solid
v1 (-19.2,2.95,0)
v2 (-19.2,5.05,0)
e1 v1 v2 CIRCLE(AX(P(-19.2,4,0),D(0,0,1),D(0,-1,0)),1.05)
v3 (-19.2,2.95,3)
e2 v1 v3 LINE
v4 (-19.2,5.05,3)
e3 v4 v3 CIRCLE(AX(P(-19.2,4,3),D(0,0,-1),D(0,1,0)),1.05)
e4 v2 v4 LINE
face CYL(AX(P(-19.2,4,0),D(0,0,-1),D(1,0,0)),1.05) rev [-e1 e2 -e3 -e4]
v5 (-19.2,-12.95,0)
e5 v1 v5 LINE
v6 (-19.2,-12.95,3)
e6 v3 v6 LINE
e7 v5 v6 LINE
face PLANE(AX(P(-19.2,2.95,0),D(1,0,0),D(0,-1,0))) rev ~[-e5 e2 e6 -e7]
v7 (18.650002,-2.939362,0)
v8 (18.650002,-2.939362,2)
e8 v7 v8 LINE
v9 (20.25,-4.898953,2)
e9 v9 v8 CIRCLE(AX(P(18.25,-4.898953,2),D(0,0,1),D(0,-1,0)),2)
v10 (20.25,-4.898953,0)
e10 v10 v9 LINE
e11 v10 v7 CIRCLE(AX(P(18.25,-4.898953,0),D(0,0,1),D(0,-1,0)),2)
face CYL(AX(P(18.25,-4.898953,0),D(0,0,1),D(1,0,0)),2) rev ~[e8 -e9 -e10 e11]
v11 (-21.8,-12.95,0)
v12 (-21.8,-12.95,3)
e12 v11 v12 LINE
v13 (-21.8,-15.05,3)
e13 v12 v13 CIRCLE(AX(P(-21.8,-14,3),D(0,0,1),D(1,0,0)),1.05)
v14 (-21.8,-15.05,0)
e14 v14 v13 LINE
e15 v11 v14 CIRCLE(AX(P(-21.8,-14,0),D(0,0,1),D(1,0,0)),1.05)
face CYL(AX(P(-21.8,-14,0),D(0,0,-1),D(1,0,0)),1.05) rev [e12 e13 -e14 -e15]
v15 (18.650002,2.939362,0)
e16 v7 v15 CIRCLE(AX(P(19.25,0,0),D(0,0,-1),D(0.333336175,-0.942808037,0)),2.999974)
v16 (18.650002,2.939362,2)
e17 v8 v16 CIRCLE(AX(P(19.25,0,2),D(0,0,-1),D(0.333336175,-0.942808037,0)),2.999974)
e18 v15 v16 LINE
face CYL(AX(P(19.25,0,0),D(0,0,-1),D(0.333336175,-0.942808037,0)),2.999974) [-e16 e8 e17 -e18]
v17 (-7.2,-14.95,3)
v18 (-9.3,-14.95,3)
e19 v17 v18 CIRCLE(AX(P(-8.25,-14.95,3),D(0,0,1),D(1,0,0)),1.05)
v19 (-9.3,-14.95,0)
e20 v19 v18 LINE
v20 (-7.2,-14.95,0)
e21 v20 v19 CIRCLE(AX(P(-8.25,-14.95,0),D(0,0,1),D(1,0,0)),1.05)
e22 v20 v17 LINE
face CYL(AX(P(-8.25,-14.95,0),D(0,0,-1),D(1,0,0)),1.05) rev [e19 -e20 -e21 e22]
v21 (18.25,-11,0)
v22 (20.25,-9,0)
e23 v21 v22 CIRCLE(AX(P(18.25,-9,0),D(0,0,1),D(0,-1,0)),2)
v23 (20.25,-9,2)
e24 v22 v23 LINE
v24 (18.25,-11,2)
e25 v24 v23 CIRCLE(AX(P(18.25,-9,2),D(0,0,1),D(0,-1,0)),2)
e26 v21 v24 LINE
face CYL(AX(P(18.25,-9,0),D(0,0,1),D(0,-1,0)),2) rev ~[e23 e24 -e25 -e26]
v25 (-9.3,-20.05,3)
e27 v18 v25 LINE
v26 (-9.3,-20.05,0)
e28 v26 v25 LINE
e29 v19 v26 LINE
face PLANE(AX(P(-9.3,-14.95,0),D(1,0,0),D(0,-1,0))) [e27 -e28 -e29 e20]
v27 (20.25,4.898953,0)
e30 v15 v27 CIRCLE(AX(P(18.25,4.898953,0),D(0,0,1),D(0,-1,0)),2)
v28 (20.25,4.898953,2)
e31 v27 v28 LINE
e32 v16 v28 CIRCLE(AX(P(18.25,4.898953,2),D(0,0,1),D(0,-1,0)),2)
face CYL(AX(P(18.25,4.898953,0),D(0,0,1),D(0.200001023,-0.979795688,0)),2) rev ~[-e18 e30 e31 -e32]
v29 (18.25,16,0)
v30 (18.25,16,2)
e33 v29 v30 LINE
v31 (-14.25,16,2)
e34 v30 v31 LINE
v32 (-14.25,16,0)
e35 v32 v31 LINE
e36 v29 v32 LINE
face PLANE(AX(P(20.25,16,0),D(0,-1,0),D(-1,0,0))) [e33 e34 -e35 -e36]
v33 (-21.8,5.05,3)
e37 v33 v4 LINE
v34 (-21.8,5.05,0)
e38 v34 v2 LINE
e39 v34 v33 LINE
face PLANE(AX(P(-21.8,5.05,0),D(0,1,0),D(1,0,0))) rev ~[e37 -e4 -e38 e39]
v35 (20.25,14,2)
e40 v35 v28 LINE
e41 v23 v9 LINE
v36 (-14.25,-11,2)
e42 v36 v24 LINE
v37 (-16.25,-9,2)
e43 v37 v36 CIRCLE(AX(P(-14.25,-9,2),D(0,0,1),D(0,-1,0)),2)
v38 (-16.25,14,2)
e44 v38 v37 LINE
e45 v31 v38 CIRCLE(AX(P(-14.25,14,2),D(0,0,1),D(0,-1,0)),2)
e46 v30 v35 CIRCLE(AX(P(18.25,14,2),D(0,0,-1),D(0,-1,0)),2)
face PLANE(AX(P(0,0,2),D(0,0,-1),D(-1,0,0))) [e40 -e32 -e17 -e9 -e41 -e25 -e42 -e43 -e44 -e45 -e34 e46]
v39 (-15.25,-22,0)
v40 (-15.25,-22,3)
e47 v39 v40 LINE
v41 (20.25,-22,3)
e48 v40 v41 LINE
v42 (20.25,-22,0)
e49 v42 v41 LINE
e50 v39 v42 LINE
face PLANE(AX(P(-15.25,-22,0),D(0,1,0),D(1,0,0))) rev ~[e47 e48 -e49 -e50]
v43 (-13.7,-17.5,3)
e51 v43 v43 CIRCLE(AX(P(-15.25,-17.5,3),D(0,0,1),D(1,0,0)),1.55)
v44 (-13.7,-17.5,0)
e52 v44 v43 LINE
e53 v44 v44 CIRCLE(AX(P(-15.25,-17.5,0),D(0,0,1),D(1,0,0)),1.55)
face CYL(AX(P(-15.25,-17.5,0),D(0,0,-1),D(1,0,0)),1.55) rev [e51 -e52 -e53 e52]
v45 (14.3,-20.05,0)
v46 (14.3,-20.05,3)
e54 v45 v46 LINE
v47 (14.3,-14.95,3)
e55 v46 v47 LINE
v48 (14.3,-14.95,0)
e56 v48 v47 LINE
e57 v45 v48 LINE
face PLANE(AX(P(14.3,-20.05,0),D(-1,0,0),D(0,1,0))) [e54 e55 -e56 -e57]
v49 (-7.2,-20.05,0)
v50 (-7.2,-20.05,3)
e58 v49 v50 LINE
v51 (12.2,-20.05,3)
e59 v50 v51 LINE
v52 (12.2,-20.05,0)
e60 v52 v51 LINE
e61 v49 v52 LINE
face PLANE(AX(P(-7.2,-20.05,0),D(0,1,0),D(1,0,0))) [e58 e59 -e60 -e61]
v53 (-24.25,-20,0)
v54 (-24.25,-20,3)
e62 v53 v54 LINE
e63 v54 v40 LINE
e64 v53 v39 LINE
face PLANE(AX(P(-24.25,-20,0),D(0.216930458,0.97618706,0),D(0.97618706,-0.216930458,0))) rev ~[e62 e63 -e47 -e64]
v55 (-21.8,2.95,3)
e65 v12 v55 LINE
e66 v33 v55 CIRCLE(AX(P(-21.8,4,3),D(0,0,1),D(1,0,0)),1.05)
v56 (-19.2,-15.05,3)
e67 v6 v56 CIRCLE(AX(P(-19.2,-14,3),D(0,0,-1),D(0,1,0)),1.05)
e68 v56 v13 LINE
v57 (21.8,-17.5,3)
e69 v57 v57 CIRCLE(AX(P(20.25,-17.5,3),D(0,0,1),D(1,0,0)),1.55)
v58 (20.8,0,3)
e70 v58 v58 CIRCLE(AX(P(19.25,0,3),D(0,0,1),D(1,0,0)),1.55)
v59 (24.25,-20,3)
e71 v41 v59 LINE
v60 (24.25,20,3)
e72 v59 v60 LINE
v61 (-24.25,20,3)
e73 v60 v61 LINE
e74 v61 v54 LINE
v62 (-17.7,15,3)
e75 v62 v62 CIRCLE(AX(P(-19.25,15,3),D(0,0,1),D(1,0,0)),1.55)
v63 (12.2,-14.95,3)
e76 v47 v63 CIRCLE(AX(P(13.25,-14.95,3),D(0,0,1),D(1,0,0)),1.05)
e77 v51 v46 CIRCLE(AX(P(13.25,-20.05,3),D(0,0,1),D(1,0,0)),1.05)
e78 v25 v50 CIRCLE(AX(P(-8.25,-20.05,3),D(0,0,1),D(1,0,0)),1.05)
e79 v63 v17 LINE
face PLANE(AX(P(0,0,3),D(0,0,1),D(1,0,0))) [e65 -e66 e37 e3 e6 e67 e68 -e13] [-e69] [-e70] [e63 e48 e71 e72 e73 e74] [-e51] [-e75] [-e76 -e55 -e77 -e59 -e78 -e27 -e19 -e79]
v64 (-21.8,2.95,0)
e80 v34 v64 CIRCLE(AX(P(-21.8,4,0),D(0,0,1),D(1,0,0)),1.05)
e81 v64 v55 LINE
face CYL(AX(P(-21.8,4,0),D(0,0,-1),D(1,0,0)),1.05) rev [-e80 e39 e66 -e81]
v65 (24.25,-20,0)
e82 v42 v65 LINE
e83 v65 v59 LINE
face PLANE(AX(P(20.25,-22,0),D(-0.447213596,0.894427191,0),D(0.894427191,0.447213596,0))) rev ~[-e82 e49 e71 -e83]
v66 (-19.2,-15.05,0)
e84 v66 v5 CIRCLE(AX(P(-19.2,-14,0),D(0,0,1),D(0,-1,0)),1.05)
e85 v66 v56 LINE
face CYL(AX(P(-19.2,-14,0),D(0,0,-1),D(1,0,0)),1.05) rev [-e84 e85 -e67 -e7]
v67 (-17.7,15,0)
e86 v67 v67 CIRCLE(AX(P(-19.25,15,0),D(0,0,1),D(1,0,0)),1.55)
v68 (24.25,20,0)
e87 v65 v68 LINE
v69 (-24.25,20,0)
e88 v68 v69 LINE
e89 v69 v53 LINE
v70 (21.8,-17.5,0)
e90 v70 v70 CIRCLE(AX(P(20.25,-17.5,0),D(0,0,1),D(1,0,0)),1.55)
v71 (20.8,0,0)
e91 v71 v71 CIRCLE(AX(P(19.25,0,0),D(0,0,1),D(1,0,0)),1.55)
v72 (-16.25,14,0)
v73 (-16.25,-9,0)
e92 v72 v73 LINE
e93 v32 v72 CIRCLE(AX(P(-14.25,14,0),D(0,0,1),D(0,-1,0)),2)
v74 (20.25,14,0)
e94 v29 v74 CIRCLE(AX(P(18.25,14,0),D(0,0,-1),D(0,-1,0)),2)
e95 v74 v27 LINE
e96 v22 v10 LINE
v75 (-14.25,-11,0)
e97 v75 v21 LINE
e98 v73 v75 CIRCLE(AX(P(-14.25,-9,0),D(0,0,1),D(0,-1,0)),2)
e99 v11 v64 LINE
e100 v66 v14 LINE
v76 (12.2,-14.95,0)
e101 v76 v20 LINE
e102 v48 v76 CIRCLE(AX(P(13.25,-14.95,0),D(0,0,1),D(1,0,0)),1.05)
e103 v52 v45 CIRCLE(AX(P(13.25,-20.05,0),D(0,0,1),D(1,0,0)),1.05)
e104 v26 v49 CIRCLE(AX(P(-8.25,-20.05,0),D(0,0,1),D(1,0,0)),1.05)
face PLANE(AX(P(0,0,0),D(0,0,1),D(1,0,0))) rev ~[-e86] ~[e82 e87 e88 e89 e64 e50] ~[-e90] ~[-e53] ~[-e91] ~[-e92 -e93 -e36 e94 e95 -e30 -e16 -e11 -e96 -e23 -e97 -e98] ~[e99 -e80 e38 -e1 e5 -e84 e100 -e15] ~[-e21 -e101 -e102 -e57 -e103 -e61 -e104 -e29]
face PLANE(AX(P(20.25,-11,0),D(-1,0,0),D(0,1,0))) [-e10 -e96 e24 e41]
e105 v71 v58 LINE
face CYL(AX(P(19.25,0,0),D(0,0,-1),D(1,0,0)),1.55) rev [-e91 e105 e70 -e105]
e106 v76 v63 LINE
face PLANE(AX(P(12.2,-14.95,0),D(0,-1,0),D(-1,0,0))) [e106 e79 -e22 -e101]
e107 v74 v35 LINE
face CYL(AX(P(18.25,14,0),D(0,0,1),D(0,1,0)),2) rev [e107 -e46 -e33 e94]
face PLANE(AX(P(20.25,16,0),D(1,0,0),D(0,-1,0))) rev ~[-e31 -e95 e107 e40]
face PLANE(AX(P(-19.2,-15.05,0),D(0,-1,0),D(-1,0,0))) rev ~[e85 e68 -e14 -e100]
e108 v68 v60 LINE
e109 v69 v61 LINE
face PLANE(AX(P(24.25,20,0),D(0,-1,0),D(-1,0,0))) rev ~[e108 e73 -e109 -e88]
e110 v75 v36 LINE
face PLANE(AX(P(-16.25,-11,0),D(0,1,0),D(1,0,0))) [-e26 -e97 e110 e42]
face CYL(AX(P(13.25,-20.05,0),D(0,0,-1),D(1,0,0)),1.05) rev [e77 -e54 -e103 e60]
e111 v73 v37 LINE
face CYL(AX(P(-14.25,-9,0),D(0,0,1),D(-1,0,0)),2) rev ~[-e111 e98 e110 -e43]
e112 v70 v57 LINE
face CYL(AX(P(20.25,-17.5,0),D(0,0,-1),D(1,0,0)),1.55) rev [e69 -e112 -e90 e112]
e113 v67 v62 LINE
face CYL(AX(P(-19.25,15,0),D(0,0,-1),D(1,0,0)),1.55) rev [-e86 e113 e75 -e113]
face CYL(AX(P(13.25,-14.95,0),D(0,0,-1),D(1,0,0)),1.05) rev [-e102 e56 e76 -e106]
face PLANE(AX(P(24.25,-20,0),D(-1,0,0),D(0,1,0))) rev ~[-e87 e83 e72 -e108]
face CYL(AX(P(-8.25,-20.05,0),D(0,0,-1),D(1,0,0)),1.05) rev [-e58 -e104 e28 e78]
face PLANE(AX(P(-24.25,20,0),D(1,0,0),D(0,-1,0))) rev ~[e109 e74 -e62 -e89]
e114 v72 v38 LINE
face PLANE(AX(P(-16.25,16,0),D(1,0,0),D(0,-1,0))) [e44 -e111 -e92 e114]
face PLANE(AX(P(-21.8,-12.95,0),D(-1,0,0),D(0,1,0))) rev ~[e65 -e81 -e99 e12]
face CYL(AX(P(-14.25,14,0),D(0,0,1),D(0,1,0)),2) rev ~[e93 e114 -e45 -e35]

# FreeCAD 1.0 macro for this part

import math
import FreeCAD as App
import Part
import Sketcher
from FreeCAD import Vector


def edges_at(feature, points):
    """Names of the edges that pass closest to the given points."""
    edges = feature.Shape.Edges
    near = lambda p: min(range(len(edges)), key=lambda i: edges[i].distToShape(Part.Vertex(*p))[0])
    return sorted({f"Edge{near(p) + 1}" for p in points})

doc = App.newDocument("Part")
body = doc.addObject("PartDesign::Body", "Body")

# Sketch on XY plane
sketch1 = body.newObject("Sketcher::SketchObject", "Sketch")
sketch1.AttachmentSupport = (doc.getObject("XY_Plane"), [""])
sketch1.MapMode = "FlatFace"
sketch1.addGeometry([
    Part.LineSegment(Vector(20.2, -22, 0), Vector(24.2, -20, 0)),  # 0
    Part.LineSegment(Vector(24.2, -20, 0), Vector(24.2, 20, 0)),  # 1
    Part.LineSegment(Vector(24.2, 20, 0), Vector(-24.2, 20, 0)),  # 2
    Part.LineSegment(Vector(-24.2, 20, 0), Vector(-24.2, -20, 0)),  # 3
    Part.LineSegment(Vector(-24.2, -20, 0), Vector(-15.2, -22, 0)),  # 4
    Part.LineSegment(Vector(-15.2, -22, 0), Vector(20.2, -22, 0)),  # 5
    Part.Circle(Vector(-15.2, -17.5, 0), Vector(0, 0, 1), 1.6),  # 6
    Part.ArcOfCircle(Part.Circle(Vector(-21.8, 4, 0), Vector(0, 0, 1), 1.1), math.radians(90), math.radians(270)),  # 7
    Part.LineSegment(Vector(-21.8, 5, 0), Vector(-19.2, 5, 0)),  # 8
    Part.ArcOfCircle(Part.Circle(Vector(-19.2, 4, 0), Vector(0, 0, 1), 1.1), math.radians(-90), math.radians(90)),  # 9
    Part.LineSegment(Vector(-19.2, 3, 0), Vector(-19.2, -12.9, 0)),  # 10
    Part.ArcOfCircle(Part.Circle(Vector(-19.2, -14, 0), Vector(0, 0, 1), 1.1), math.radians(-90), math.radians(90)),  # 11
    Part.LineSegment(Vector(-19.2, -15.1, 0), Vector(-21.8, -15.1, 0)),  # 12
    Part.ArcOfCircle(Part.Circle(Vector(-21.8, -14, 0), Vector(0, 0, 1), 1.1), math.radians(90), math.radians(270)),  # 13
    Part.LineSegment(Vector(-21.8, -12.9, 0), Vector(-21.8, 3, 0)),  # 14
    Part.ArcOfCircle(Part.Circle(Vector(-8.2, -14.9, 0), Vector(0, 0, 1), 1.1), math.radians(0), math.radians(180)),  # 15
    Part.LineSegment(Vector(-7.2, -14.9, 0), Vector(12.2, -14.9, 0)),  # 16
    Part.ArcOfCircle(Part.Circle(Vector(13.2, -14.9, 0), Vector(0, 0, 1), 1.1), math.radians(0), math.radians(180)),  # 17
    Part.LineSegment(Vector(14.3, -14.9, 0), Vector(14.3, -20.1, 0)),  # 18
    Part.ArcOfCircle(Part.Circle(Vector(13.2, -20.1, 0), Vector(0, 0, 1), 1.1), math.radians(180), math.radians(360)),  # 19
    Part.LineSegment(Vector(12.2, -20.1, 0), Vector(-7.2, -20.1, 0)),  # 20
    Part.ArcOfCircle(Part.Circle(Vector(-8.2, -20.1, 0), Vector(0, 0, 1), 1.1), math.radians(180), math.radians(360)),  # 21
    Part.LineSegment(Vector(-9.3, -20.1, 0), Vector(-9.3, -14.9, 0)),  # 22
    Part.Circle(Vector(20.2, -17.5, 0), Vector(0, 0, 1), 1.6),  # 23
    Part.Circle(Vector(-19.2, 15, 0), Vector(0, 0, 1), 1.6),  # 24
    Part.Circle(Vector(19.2, 0, 0), Vector(0, 0, 1), 1.6),  # 25
], False)
sketch1.addConstraint([
    Sketcher.Constraint("Coincident", 0, 2, 1, 1),
    Sketcher.Constraint("Coincident", 1, 2, 2, 1),
    Sketcher.Constraint("Coincident", 2, 2, 3, 1),
    Sketcher.Constraint("Coincident", 3, 2, 4, 1),
    Sketcher.Constraint("Coincident", 4, 2, 5, 1),
    Sketcher.Constraint("Coincident", 5, 2, 0, 1),
    Sketcher.Constraint("Tangent", 7, 1, 8, 1),
    Sketcher.Constraint("Tangent", 8, 2, 9, 2),
    Sketcher.Constraint("Coincident", 9, 1, 10, 1),
    Sketcher.Constraint("Coincident", 10, 2, 11, 2),
    Sketcher.Constraint("Tangent", 11, 1, 12, 1),
    Sketcher.Constraint("Tangent", 12, 2, 13, 2),
    Sketcher.Constraint("Coincident", 13, 1, 14, 1),
    Sketcher.Constraint("Coincident", 14, 2, 7, 2),
    Sketcher.Constraint("Coincident", 15, 1, 16, 1),
    Sketcher.Constraint("Coincident", 16, 2, 17, 2),
    Sketcher.Constraint("Tangent", 17, 1, 18, 1),
    Sketcher.Constraint("Tangent", 18, 2, 19, 2),
    Sketcher.Constraint("Coincident", 19, 1, 20, 1),
    Sketcher.Constraint("Coincident", 20, 2, 21, 2),
    Sketcher.Constraint("Tangent", 21, 1, 22, 1),
    Sketcher.Constraint("Tangent", 22, 2, 15, 2),
    Sketcher.Constraint("Vertical", 1),
    Sketcher.Constraint("Horizontal", 2),
    Sketcher.Constraint("Vertical", 3),
    Sketcher.Constraint("Horizontal", 5),
    Sketcher.Constraint("Horizontal", 8),
    Sketcher.Constraint("Vertical", 10),
    Sketcher.Constraint("Horizontal", 12),
    Sketcher.Constraint("Vertical", 14),
    Sketcher.Constraint("Horizontal", 16),
    Sketcher.Constraint("Vertical", 18),
    Sketcher.Constraint("Horizontal", 20),
    Sketcher.Constraint("Vertical", 22),
    Sketcher.Constraint("Equal", 7, 9),
    Sketcher.Constraint("Equal", 9, 11),
    Sketcher.Constraint("Equal", 11, 13),
    Sketcher.Constraint("Equal", 13, 15),
    Sketcher.Constraint("Equal", 15, 17),
    Sketcher.Constraint("Equal", 17, 19),
    Sketcher.Constraint("Equal", 19, 21),
    Sketcher.Constraint("Equal", 6, 23),
    Sketcher.Constraint("Equal", 23, 24),
    Sketcher.Constraint("Equal", 24, 25),
    Sketcher.Constraint("Symmetric", 0, 2, 2, 2, -1, 1),
    Sketcher.Constraint("PointOnObject", 25, 3, -1),
    Sketcher.Constraint("Horizontal", 15, 3, 17, 3),
    Sketcher.Constraint("Horizontal", 19, 3, 21, 3),
    Sketcher.Constraint("Horizontal", 6, 3, 23, 3),
    Sketcher.Constraint("Horizontal", 0, 2, 3, 2),
    Sketcher.Constraint("Horizontal", 17, 3, 15, 1),
    Sketcher.Constraint("Horizontal", 18, 2, 19, 1),
    Sketcher.Constraint("Vertical", 9, 3, 11, 3),
    Sketcher.Constraint("Vertical", 7, 3, 13, 3),
    Sketcher.Constraint("Vertical", 6, 3, 4, 2),
    Sketcher.Constraint("Vertical", 23, 3, 5, 2),
    Sketcher.Constraint("Vertical", 8, 2, 9, 1),
    Sketcher.Constraint("Vertical", 12, 2, 13, 1),
    Sketcher.Constraint("Diameter", 6, 3.1),
    Sketcher.Constraint("DistanceY", 1, 1, 1, 2, 40.0),
    Sketcher.Constraint("Radius", 7, 1.05),
    Sketcher.Constraint("DistanceX", 2, 2, 2, 1, 48.5),
    Sketcher.Constraint("DistanceX", 5, 1, 5, 2, 35.5),
    Sketcher.Constraint("DistanceY", -1, 1, 7, 3, 4.0),
    Sketcher.Constraint("DistanceY", -1, 1, 24, 3, 15.0),
    Sketcher.Constraint("DistanceX", 23, 3, 0, 2, 4.0),
    Sketcher.Constraint("DistanceX", 25, 3, 0, 2, 5.0),
    Sketcher.Constraint("DistanceX", 2, 2, 24, 3, 5.0),
    Sketcher.Constraint("DistanceY", 4, 2, 3, 2, 2.0),
    Sketcher.Constraint("DistanceY", 0, 2, 23, 3, 2.5),
    Sketcher.Constraint("DistanceX", 24, 3, 9, 3, 0.05),
    Sketcher.Constraint("DistanceY", 19, 3, 0, 2, 0.05),
    Sketcher.Constraint("DistanceX", 8, 1, 8, 2, 2.6),
    Sketcher.Constraint("DistanceX", 16, 1, 16, 2, 19.4),
    Sketcher.Constraint("DistanceY", 10, 2, 10, 1, 15.9),
    Sketcher.Constraint("DistanceY", 18, 2, 18, 1, 5.1),
    Sketcher.Constraint("DistanceX", 6, 3, 15, 3, 7.0),
])
pad1 = body.newObject("PartDesign::Pad", "Pad")
pad1.Profile = sketch1
pad1.Length = 3

# Sketch on XY plane
sketch2 = body.newObject("Sketcher::SketchObject", "Sketch001")
sketch2.AttachmentSupport = (doc.getObject("XY_Plane"), [""])
sketch2.MapMode = "FlatFace"
sketch2.addGeometry([
    Part.LineSegment(Vector(-16.2, 16, 0), Vector(20.2, 16, 0)),  # 0
    Part.LineSegment(Vector(20.2, 16, 0), Vector(20.2, 2.8, 0)),  # 1
    Part.ArcOfCircle(Part.Circle(Vector(19.2, 0, 0), Vector(0, 0, 1), 3), math.radians(71), math.radians(289)),  # 2
    Part.LineSegment(Vector(20.2, -2.8, 0), Vector(20.2, -11, 0)),  # 3
    Part.LineSegment(Vector(20.2, -11, 0), Vector(-16.2, -11, 0)),  # 4
    Part.LineSegment(Vector(-16.2, -11, 0), Vector(-16.2, 16, 0)),  # 5
], False)
sketch2.addConstraint([
    Sketcher.Constraint("Coincident", 0, 2, 1, 1),
    Sketcher.Constraint("Coincident", 1, 2, 2, 1),
    Sketcher.Constraint("Coincident", 2, 2, 3, 1),
    Sketcher.Constraint("Coincident", 3, 2, 4, 1),
    Sketcher.Constraint("Coincident", 4, 2, 5, 1),
    Sketcher.Constraint("Coincident", 5, 2, 0, 1),
    Sketcher.Constraint("Horizontal", 0),
    Sketcher.Constraint("Vertical", 1),
    Sketcher.Constraint("Vertical", 3),
    Sketcher.Constraint("Horizontal", 4),
    Sketcher.Constraint("Vertical", 5),
    Sketcher.Constraint("Symmetric", 1, 2, 2, 2, -1),
    Sketcher.Constraint("Radius", 2, 3.0),
    Sketcher.Constraint("DistanceY", 5, 1, 5, 2, 27.0),
    Sketcher.Constraint("DistanceX", 0, 1, 0, 2, 36.5),
    Sketcher.Constraint("DistanceY", -1, 1, 0, 2, 16.0),
    Sketcher.Constraint("DistanceX", 2, 3, 0, 2, 1.0),
    Sketcher.Constraint("DistanceX", -1, 1, 2, 3, 19.25),
])
pocket1 = body.newObject("PartDesign::Pocket", "Pocket")
pocket1.Profile = sketch2
pocket1.Length = 2
pocket1.Reversed = True
doc.recompute()

fillet = body.newObject("PartDesign::Fillet", "Fillet")
fillet.Base = (pocket1, edges_at(pocket1, [
    (20.25, 2.828, 1),
    (20.25, -2.828, 1),
    (20.25, 16, 1),
    (-16.25, 16, 1),
    (-16.25, -11, 1),
    (20.25, -11, 1),
]))
fillet.Radius = 2

doc.recompute()
